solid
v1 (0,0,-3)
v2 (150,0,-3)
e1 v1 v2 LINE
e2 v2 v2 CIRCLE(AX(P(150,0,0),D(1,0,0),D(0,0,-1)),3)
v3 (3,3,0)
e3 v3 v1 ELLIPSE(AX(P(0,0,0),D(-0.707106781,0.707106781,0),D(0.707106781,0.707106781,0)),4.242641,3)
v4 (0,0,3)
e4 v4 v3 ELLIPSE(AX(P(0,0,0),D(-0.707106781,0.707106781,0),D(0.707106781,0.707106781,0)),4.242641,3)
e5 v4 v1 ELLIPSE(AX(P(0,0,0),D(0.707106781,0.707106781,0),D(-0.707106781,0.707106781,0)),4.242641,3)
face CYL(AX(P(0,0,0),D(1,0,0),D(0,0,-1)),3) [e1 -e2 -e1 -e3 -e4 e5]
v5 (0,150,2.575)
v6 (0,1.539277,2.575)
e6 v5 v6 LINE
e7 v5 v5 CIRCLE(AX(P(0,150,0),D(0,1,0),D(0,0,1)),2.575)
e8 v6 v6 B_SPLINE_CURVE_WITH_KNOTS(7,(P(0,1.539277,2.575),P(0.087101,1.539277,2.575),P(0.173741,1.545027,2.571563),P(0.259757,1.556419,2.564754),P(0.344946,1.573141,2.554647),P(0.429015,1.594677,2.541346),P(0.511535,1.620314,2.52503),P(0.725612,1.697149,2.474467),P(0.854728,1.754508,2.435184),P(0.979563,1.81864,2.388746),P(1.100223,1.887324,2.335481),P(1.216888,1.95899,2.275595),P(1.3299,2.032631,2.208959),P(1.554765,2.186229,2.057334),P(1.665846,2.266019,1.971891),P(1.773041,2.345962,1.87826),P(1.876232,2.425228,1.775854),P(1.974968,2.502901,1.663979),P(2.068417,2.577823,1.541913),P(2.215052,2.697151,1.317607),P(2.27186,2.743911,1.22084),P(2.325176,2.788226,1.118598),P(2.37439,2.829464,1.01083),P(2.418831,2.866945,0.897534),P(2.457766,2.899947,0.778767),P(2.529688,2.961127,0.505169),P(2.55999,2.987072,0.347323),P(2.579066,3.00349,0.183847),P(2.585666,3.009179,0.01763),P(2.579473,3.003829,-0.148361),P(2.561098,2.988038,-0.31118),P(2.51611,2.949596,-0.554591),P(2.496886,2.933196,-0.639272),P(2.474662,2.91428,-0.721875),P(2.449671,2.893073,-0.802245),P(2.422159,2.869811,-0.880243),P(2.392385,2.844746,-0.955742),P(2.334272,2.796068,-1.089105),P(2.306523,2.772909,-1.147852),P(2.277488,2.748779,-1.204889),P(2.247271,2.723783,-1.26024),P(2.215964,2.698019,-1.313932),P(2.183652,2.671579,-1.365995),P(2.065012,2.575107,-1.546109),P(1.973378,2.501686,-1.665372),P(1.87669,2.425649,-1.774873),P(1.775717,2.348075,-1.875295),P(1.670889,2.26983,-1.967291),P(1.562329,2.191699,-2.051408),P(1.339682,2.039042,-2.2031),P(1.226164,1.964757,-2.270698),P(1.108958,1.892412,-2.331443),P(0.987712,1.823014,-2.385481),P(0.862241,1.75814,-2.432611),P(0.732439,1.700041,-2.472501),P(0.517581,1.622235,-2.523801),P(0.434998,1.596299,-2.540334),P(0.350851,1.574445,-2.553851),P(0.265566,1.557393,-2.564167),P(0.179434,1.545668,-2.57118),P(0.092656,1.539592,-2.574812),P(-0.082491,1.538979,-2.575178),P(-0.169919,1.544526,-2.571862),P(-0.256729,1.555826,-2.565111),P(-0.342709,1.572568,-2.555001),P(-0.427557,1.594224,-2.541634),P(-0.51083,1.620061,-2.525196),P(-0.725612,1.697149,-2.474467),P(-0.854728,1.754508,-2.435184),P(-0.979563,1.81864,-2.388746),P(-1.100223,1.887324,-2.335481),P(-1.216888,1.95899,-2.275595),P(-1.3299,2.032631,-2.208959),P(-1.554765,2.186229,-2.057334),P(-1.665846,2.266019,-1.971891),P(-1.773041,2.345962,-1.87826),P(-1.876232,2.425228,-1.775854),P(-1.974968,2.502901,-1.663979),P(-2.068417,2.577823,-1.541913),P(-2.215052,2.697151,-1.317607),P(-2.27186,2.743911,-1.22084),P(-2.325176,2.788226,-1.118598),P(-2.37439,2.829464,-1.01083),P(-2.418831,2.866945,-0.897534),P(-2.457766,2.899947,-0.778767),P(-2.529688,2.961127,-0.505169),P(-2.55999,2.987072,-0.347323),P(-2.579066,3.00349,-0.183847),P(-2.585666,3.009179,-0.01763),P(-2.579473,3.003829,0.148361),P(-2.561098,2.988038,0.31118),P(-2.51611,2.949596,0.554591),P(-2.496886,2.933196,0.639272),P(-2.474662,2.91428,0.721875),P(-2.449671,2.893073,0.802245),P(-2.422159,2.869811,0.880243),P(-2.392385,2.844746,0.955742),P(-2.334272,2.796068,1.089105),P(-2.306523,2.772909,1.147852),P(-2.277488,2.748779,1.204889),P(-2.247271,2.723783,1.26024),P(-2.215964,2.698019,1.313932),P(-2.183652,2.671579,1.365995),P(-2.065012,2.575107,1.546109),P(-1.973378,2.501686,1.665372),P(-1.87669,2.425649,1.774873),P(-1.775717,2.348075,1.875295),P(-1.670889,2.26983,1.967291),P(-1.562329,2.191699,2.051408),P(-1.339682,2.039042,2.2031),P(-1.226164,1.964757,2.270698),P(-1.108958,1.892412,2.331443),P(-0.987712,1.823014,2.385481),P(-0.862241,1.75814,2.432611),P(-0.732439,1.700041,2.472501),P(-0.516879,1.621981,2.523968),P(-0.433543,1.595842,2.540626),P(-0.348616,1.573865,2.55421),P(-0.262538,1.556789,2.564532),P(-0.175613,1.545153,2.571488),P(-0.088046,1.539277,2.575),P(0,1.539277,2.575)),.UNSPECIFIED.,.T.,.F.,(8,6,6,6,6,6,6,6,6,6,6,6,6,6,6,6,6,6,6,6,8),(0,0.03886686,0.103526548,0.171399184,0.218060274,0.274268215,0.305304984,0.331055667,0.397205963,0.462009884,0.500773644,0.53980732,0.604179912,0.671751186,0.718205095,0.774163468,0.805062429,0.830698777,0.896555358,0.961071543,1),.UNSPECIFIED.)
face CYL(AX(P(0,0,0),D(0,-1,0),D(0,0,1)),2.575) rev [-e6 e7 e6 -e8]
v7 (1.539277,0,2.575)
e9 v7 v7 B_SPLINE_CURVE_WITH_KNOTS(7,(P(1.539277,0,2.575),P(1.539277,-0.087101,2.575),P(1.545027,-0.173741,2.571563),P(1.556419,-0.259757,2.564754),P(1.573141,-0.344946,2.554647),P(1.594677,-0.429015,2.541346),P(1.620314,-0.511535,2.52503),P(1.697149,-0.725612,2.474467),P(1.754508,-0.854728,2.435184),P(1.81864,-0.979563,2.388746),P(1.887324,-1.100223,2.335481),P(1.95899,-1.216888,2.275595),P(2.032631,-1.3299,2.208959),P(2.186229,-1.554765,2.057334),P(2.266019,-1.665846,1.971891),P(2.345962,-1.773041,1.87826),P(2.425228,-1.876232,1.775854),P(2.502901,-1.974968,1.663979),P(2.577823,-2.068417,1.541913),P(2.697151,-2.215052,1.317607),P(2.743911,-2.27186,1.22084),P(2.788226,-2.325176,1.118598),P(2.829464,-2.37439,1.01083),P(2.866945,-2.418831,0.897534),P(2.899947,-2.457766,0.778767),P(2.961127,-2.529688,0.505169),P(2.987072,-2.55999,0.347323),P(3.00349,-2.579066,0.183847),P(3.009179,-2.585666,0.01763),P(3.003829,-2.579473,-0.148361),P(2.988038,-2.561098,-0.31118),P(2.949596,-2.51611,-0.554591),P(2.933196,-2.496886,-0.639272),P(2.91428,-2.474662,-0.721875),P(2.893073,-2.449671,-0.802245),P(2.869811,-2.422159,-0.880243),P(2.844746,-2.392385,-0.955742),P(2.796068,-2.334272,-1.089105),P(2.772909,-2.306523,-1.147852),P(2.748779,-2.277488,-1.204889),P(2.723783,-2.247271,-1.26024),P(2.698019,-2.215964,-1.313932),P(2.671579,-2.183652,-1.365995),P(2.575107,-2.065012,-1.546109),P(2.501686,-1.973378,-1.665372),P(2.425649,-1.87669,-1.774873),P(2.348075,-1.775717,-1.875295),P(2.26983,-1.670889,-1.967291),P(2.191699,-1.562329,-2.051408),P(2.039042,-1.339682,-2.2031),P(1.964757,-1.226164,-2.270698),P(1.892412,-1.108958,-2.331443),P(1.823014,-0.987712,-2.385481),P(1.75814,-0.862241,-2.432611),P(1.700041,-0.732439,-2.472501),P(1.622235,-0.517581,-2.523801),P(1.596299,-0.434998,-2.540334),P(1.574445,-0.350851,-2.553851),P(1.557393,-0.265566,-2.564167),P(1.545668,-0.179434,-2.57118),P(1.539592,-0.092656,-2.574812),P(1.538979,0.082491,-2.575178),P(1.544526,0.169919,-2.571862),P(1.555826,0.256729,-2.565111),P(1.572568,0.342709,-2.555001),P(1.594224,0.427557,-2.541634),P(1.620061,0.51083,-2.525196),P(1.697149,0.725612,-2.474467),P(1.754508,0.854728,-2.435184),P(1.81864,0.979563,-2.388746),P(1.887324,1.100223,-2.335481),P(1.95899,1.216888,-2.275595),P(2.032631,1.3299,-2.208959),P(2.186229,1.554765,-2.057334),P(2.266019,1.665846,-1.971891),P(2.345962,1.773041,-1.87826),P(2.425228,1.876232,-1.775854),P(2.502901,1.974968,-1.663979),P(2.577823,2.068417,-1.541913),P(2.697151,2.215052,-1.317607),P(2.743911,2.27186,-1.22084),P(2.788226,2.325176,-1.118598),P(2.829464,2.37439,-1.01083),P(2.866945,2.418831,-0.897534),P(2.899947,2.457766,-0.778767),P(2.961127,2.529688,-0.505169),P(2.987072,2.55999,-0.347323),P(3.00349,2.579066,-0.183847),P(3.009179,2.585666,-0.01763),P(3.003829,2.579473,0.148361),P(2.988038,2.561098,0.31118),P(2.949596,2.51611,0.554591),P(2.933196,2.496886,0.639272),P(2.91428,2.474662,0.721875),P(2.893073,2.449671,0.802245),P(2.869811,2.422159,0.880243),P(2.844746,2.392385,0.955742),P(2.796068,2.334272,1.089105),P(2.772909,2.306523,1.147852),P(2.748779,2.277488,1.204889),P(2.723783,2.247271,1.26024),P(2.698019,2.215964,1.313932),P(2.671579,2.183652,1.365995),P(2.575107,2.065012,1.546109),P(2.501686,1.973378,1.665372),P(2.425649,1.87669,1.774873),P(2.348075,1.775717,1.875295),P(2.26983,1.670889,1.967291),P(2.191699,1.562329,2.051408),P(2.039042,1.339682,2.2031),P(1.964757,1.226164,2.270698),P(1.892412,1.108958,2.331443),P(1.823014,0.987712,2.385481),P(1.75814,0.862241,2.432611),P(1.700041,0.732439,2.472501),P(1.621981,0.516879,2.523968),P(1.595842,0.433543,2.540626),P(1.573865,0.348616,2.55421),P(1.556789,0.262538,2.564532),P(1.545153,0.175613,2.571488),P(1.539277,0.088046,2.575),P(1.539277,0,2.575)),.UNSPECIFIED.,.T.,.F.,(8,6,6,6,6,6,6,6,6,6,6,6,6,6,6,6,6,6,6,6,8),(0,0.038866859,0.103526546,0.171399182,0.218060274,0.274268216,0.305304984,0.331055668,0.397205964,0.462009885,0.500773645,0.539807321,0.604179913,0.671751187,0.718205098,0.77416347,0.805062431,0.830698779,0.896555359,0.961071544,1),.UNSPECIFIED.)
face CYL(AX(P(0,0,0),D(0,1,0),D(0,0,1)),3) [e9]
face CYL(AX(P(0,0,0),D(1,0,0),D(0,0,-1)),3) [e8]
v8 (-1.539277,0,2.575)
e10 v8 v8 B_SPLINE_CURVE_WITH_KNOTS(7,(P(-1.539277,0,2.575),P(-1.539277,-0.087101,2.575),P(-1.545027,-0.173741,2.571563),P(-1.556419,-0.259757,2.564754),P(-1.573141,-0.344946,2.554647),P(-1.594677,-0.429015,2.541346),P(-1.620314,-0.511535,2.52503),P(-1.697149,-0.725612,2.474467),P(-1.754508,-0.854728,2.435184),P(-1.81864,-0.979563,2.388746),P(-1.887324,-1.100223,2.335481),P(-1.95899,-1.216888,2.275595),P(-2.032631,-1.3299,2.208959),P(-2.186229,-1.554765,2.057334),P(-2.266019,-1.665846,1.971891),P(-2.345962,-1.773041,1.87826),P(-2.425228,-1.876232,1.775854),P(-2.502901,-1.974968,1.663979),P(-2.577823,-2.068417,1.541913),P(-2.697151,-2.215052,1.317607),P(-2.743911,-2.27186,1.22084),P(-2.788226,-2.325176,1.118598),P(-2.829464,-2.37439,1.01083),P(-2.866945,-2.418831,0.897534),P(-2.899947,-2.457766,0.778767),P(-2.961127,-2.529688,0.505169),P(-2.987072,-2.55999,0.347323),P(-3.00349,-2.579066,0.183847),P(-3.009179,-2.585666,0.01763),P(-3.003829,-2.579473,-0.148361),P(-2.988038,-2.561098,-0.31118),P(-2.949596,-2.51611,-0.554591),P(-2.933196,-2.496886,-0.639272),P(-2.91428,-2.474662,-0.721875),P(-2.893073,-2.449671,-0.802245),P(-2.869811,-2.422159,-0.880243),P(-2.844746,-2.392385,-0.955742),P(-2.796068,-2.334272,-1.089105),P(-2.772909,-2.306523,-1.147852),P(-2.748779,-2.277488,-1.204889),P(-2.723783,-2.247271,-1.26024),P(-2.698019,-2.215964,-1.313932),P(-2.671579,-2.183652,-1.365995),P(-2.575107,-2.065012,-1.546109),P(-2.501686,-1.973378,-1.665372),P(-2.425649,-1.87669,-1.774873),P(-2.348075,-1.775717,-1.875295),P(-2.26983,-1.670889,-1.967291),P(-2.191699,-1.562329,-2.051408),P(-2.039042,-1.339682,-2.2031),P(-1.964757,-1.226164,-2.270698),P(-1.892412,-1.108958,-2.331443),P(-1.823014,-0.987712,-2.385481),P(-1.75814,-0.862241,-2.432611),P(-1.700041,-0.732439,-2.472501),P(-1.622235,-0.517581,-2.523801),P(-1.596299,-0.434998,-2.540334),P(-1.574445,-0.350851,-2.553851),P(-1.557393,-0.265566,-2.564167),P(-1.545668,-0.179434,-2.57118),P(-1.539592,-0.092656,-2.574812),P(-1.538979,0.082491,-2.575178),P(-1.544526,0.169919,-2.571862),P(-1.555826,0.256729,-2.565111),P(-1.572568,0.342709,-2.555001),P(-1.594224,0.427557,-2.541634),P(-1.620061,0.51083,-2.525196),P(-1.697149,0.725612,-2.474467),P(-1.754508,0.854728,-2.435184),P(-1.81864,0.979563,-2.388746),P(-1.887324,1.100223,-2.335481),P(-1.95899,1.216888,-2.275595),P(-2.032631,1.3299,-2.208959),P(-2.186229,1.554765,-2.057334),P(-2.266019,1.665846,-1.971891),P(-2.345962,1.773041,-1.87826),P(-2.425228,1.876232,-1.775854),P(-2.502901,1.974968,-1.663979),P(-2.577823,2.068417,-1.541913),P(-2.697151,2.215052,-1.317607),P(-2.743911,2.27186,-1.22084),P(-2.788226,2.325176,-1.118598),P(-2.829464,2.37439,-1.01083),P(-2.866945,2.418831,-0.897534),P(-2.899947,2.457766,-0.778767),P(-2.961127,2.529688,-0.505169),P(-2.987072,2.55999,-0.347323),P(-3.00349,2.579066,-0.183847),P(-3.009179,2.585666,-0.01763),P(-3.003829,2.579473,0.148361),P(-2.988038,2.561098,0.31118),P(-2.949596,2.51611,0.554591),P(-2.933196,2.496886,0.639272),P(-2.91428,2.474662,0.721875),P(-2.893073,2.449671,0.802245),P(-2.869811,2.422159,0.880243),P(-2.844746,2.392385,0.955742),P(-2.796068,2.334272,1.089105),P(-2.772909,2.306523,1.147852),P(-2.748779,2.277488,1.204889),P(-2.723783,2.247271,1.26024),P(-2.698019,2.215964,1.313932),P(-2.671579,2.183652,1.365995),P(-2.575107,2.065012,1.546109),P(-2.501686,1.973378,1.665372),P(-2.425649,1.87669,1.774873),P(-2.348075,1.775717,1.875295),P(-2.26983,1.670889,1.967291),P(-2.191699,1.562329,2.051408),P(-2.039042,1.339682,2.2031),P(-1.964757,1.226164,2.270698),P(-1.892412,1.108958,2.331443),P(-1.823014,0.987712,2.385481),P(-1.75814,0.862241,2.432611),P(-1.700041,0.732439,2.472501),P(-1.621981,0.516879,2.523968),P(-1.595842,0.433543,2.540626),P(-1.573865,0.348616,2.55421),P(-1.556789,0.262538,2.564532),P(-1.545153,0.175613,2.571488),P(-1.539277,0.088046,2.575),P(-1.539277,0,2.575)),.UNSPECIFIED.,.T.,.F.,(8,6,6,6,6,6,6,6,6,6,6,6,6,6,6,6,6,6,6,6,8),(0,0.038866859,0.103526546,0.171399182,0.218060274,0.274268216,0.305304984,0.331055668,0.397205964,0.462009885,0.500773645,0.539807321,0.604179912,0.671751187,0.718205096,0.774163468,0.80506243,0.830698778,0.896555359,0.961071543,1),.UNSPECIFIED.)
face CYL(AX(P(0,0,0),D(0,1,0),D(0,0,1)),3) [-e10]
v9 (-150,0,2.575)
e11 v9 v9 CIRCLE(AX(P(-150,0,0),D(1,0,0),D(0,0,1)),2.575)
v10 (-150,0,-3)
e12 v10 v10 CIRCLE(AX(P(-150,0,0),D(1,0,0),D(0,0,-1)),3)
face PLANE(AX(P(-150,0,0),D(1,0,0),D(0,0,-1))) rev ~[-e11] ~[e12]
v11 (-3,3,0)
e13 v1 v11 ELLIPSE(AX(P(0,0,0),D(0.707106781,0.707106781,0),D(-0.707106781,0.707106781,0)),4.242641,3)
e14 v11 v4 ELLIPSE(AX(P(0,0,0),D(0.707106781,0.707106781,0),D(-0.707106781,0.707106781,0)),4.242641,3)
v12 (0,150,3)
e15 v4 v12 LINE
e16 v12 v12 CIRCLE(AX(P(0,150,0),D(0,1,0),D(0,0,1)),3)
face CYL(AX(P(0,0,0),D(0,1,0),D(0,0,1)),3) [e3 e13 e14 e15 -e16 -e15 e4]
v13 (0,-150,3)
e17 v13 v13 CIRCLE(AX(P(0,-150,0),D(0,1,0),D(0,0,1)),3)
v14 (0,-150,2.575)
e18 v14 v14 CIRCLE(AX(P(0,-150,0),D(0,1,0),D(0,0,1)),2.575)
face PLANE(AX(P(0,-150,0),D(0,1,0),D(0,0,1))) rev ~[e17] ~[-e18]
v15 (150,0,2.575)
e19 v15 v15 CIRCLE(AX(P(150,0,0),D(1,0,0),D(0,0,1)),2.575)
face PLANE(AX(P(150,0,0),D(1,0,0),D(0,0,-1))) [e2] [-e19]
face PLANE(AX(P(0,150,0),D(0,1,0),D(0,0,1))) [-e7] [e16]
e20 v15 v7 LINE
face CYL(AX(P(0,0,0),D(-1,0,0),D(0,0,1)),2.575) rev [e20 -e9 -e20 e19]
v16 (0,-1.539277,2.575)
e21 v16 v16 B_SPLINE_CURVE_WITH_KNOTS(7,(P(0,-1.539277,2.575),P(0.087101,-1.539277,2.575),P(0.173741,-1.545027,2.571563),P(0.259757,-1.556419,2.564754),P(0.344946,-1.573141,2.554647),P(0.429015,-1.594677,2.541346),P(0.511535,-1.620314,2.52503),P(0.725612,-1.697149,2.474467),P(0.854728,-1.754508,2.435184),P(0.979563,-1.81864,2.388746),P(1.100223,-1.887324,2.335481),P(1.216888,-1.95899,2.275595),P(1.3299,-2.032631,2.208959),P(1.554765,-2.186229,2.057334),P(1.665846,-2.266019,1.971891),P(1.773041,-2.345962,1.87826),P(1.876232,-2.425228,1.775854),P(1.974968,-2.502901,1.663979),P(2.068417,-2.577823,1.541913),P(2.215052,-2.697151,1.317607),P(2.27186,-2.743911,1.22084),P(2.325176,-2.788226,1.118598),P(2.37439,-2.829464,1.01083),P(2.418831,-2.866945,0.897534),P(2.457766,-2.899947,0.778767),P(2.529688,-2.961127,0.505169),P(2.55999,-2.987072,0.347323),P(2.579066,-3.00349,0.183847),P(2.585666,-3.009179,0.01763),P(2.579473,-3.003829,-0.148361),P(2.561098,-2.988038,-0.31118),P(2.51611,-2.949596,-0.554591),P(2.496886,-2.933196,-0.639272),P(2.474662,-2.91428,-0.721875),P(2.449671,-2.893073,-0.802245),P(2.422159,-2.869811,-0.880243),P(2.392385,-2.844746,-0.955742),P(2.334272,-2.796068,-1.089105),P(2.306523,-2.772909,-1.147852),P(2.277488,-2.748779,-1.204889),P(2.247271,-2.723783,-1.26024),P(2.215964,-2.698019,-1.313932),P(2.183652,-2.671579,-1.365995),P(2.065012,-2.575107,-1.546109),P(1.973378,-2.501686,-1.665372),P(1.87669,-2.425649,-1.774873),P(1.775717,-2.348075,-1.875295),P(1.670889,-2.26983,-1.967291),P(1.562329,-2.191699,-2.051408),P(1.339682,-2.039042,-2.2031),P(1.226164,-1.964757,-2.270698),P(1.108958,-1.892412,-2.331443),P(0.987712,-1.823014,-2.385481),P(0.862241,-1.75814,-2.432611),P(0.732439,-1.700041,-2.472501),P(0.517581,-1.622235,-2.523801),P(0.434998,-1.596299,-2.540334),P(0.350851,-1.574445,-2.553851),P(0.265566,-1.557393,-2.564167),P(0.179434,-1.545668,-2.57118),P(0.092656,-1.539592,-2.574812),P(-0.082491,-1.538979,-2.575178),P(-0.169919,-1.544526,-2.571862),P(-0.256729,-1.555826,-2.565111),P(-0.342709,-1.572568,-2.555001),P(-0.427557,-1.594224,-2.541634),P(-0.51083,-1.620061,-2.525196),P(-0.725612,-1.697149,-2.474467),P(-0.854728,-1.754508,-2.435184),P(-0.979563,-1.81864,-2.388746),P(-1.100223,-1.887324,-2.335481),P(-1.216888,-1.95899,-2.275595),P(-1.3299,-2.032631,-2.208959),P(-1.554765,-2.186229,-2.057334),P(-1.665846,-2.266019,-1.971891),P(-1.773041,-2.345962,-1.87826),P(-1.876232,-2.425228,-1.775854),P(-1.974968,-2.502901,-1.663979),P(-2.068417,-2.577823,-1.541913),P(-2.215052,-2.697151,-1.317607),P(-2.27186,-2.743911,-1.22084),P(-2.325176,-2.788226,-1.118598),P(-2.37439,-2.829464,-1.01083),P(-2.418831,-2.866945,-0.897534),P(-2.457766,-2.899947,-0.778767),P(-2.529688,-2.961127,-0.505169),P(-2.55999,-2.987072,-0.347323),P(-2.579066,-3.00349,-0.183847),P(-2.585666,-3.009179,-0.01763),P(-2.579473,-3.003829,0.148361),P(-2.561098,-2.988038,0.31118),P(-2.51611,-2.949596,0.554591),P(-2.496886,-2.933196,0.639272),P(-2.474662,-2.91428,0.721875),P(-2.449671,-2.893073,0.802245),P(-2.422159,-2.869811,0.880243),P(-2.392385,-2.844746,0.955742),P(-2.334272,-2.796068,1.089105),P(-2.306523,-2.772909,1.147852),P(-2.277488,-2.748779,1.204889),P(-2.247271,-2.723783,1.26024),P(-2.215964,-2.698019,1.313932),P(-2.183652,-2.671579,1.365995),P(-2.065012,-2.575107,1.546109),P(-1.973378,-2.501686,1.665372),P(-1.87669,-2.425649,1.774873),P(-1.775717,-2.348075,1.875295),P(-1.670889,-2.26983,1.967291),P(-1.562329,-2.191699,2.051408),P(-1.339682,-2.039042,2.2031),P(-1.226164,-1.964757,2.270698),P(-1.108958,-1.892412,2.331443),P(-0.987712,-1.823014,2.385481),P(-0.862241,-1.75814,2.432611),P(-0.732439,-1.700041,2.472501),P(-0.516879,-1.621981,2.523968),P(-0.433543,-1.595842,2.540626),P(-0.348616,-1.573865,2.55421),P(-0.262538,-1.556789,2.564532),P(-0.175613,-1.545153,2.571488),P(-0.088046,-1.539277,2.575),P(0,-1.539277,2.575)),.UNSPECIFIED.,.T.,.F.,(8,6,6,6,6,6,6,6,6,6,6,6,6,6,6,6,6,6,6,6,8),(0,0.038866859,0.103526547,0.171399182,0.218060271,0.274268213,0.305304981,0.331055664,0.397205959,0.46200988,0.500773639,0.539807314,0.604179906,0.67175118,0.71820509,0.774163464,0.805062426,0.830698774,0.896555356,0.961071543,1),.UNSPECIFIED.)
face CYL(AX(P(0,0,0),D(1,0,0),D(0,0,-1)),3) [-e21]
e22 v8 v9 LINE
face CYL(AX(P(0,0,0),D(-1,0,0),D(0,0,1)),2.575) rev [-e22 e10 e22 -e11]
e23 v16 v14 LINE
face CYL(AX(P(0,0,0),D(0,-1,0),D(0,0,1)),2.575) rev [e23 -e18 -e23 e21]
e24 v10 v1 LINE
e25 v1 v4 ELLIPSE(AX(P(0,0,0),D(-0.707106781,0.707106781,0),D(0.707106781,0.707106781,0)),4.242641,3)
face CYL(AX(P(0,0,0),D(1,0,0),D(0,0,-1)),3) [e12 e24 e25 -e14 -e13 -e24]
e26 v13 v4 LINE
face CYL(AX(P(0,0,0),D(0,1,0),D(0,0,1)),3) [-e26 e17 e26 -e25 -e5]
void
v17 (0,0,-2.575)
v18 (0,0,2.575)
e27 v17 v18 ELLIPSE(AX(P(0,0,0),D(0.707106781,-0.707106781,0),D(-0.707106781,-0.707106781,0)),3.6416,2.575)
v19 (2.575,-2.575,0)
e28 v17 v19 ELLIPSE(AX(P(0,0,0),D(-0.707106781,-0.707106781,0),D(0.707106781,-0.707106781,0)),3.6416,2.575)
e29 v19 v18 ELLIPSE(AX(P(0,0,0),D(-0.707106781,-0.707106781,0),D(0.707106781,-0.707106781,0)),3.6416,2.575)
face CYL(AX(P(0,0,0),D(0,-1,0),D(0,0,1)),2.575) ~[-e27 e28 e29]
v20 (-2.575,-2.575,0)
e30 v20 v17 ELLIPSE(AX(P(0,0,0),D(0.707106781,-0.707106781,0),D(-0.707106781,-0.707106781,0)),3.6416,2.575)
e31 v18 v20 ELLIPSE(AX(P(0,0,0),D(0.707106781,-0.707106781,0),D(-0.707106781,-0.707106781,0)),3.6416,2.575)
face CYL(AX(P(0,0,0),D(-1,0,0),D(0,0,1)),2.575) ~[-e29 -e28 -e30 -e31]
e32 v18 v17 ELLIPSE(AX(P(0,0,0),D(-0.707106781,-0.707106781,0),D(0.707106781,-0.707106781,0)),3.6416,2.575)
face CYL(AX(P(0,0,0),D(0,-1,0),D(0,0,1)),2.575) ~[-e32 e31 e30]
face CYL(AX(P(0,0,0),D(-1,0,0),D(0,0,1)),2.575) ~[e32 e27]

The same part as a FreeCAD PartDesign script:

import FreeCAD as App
import Part
import Sketcher

V = App.Vector

doc = App.newDocument("Part")
body = doc.addObject("PartDesign::Body", "Body")

sketch1 = doc.addObject("Sketcher::SketchObject", "Sketch")
body.addObject(sketch1)
sketch1.AttachmentSupport = (doc.XZ_Plane, [""])
sketch1.MapMode = "FlatFace"
sketch1.addGeometry([
    Part.Circle(V(0, 0, 0), V(0, 0, 1), 3),
    Part.Circle(V(0, 0, 0), V(0, 0, 1), 2.575),
], False)
sketch1.addConstraint([
    Sketcher.Constraint("Coincident", 0, 3, -1, 1),
    Sketcher.Constraint("Coincident", 1, 3, -1, 1),
    Sketcher.Constraint("Diameter", 0, 6.0),
    Sketcher.Constraint("Diameter", 1, 5.15),
])
pad1 = doc.addObject("PartDesign::Pad", "Pad")
body.addObject(pad1)
pad1.Profile = sketch1
pad1.Length = 300
pad1.Midplane = True

sketch2 = doc.addObject("Sketcher::SketchObject", "Sketch001")
body.addObject(sketch2)
sketch2.AttachmentSupport = (doc.YZ_Plane, [""])
sketch2.MapMode = "FlatFace"
sketch2.addGeometry([
    Part.Circle(V(0, 0, 0), V(0, 0, 1), 3),
    Part.Circle(V(0, 0, 0), V(0, 0, 1), 2.575),
], False)
sketch2.addConstraint([
    Sketcher.Constraint("Coincident", 0, 3, -1, 1),
    Sketcher.Constraint("Coincident", 1, 3, -1, 1),
    Sketcher.Constraint("Diameter", 0, 6.0),
    Sketcher.Constraint("Diameter", 1, 5.15),
])
pad2 = doc.addObject("PartDesign::Pad", "Pad001")
body.addObject(pad2)
pad2.Profile = sketch2
pad2.Length = 300
pad2.Midplane = True

doc.recompute()
